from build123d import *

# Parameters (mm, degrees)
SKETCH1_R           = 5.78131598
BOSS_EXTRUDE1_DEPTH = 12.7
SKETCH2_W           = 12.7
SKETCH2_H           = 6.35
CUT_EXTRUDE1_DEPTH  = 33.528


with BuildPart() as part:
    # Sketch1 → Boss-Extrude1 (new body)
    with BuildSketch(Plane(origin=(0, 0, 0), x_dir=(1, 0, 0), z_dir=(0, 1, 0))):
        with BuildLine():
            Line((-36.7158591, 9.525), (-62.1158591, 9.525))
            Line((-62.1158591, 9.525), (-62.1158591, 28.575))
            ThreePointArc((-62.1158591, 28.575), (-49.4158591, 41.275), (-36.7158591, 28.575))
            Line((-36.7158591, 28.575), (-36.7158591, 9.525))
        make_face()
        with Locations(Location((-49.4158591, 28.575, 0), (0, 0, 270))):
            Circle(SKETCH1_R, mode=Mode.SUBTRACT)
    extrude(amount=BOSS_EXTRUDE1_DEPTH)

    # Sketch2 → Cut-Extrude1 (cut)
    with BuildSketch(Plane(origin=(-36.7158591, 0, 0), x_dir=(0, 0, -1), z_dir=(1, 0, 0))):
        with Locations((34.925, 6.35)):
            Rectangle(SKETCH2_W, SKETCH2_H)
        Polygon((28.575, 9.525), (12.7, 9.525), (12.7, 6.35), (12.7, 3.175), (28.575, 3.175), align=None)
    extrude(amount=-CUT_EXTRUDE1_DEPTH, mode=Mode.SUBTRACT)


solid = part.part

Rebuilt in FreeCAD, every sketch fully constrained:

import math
import FreeCAD as App
import Part
import Sketcher
Q = App.Units.Quantity


def add_polygon(sketch, points):
    """Adds a closed chain of lines whose ends are joined by coincident constraints."""
    first, n = sketch.GeometryCount, len(points)
    for a, b in zip(points, points[1:] + points[:1]):
        sketch.addGeometry(Part.LineSegment(App.Vector(*a, 0), App.Vector(*b, 0)), False)
    for i in range(n):
        sketch.addConstraint(Sketcher.Constraint("Coincident", first + i, 2, first + (i + 1) % n, 1))

doc = App.newDocument("Part")
body = doc.addObject("PartDesign::Body", "Body")

# Sketch on XZ plane
sketch1 = body.newObject("Sketcher::SketchObject", "Sketch")
sketch1.AttachmentSupport = (doc.getObject("XZ_Plane"), [""])
sketch1.MapMode = "FlatFace"
sketch1.addGeometry([
    Part.LineSegment(App.Vector(-62.115859, -9.525, 0), App.Vector(-36.715859, -9.525, 0)),  # 0
    Part.LineSegment(App.Vector(-36.715859, -9.525, 0), App.Vector(-36.715859, -28.575, 0)),  # 1
    Part.ArcOfCircle(Part.Circle(App.Vector(-49.415859, -28.575, 0), App.Vector(0, 0, 1), 12.7), math.radians(180), math.radians(360)),  # 2
    Part.LineSegment(App.Vector(-62.115859, -28.575, 0), App.Vector(-62.115859, -9.525, 0)),  # 3
    Part.Circle(App.Vector(-49.415859, -28.575, 0), App.Vector(0, 0, 1), 5.781316),  # 4
], False)
sketch1.addConstraint([
    Sketcher.Constraint("Coincident", 0, 2, 1, 1),
    Sketcher.Constraint("Tangent", 1, 2, 2, 2),
    Sketcher.Constraint("Tangent", 2, 1, 3, 1),
    Sketcher.Constraint("Coincident", 3, 2, 0, 1),
    Sketcher.Constraint("Horizontal", 0),
    Sketcher.Constraint("Vertical", 1),
    Sketcher.Constraint("Vertical", 3),
    Sketcher.Constraint("Coincident", 4, 3, 2, 3),
    Sketcher.Constraint("Radius", 2, Q("0.5 in")),
    Sketcher.Constraint("DistanceY", 1, 2, 1, 1, Q("0.75 in")),
    Sketcher.Constraint("Diameter", 4, Q("11.562632 mm")),
    Sketcher.Constraint("DistanceY", 2, 3, -1, 1, Q("1.125 in")),
    Sketcher.Constraint("DistanceX", 2, 3, -1, 1, Q("49.415859 mm")),
])
pad1 = body.newObject("PartDesign::Pad", "Pad")
pad1.Profile = sketch1
pad1.Length = Q("0.5 in")
pad1.Reversed = True

# Sketch on YZ plane
sketch2 = body.newObject("Sketcher::SketchObject", "Sketch001")
sketch2.AttachmentSupport = (doc.getObject("YZ_Plane"), [""])
sketch2.MapMode = "FlatFace"
sketch2.AttachmentOffset = App.Placement(App.Vector(0, 0, -36.715859), App.Rotation())
add_polygon(sketch2, [(3.175, -41.275), (9.525, -41.275), (9.525, -12.7), (3.175, -12.7)])  # lines 0-3
sketch2.addConstraint([
    Sketcher.Constraint("Horizontal", 0),
    Sketcher.Constraint("Vertical", 1),
    Sketcher.Constraint("Horizontal", 2),
    Sketcher.Constraint("Vertical", 3),
    Sketcher.Constraint("DistanceX", 0, 1, 0, 2, Q("0.25 in")),
    Sketcher.Constraint("DistanceY", 1, 2, -1, 1, Q("0.5 in")),
    Sketcher.Constraint("DistanceY", 1, 1, 1, 2, Q("1.125 in")),
    Sketcher.Constraint("DistanceX", -1, 1, 0, 2, Q("0.375 in")),
])
pocket1 = body.newObject("PartDesign::Pocket", "Pocket")
pocket1.Profile = sketch2
pocket1.Length = Q("1.32 in")

doc.recompute()
